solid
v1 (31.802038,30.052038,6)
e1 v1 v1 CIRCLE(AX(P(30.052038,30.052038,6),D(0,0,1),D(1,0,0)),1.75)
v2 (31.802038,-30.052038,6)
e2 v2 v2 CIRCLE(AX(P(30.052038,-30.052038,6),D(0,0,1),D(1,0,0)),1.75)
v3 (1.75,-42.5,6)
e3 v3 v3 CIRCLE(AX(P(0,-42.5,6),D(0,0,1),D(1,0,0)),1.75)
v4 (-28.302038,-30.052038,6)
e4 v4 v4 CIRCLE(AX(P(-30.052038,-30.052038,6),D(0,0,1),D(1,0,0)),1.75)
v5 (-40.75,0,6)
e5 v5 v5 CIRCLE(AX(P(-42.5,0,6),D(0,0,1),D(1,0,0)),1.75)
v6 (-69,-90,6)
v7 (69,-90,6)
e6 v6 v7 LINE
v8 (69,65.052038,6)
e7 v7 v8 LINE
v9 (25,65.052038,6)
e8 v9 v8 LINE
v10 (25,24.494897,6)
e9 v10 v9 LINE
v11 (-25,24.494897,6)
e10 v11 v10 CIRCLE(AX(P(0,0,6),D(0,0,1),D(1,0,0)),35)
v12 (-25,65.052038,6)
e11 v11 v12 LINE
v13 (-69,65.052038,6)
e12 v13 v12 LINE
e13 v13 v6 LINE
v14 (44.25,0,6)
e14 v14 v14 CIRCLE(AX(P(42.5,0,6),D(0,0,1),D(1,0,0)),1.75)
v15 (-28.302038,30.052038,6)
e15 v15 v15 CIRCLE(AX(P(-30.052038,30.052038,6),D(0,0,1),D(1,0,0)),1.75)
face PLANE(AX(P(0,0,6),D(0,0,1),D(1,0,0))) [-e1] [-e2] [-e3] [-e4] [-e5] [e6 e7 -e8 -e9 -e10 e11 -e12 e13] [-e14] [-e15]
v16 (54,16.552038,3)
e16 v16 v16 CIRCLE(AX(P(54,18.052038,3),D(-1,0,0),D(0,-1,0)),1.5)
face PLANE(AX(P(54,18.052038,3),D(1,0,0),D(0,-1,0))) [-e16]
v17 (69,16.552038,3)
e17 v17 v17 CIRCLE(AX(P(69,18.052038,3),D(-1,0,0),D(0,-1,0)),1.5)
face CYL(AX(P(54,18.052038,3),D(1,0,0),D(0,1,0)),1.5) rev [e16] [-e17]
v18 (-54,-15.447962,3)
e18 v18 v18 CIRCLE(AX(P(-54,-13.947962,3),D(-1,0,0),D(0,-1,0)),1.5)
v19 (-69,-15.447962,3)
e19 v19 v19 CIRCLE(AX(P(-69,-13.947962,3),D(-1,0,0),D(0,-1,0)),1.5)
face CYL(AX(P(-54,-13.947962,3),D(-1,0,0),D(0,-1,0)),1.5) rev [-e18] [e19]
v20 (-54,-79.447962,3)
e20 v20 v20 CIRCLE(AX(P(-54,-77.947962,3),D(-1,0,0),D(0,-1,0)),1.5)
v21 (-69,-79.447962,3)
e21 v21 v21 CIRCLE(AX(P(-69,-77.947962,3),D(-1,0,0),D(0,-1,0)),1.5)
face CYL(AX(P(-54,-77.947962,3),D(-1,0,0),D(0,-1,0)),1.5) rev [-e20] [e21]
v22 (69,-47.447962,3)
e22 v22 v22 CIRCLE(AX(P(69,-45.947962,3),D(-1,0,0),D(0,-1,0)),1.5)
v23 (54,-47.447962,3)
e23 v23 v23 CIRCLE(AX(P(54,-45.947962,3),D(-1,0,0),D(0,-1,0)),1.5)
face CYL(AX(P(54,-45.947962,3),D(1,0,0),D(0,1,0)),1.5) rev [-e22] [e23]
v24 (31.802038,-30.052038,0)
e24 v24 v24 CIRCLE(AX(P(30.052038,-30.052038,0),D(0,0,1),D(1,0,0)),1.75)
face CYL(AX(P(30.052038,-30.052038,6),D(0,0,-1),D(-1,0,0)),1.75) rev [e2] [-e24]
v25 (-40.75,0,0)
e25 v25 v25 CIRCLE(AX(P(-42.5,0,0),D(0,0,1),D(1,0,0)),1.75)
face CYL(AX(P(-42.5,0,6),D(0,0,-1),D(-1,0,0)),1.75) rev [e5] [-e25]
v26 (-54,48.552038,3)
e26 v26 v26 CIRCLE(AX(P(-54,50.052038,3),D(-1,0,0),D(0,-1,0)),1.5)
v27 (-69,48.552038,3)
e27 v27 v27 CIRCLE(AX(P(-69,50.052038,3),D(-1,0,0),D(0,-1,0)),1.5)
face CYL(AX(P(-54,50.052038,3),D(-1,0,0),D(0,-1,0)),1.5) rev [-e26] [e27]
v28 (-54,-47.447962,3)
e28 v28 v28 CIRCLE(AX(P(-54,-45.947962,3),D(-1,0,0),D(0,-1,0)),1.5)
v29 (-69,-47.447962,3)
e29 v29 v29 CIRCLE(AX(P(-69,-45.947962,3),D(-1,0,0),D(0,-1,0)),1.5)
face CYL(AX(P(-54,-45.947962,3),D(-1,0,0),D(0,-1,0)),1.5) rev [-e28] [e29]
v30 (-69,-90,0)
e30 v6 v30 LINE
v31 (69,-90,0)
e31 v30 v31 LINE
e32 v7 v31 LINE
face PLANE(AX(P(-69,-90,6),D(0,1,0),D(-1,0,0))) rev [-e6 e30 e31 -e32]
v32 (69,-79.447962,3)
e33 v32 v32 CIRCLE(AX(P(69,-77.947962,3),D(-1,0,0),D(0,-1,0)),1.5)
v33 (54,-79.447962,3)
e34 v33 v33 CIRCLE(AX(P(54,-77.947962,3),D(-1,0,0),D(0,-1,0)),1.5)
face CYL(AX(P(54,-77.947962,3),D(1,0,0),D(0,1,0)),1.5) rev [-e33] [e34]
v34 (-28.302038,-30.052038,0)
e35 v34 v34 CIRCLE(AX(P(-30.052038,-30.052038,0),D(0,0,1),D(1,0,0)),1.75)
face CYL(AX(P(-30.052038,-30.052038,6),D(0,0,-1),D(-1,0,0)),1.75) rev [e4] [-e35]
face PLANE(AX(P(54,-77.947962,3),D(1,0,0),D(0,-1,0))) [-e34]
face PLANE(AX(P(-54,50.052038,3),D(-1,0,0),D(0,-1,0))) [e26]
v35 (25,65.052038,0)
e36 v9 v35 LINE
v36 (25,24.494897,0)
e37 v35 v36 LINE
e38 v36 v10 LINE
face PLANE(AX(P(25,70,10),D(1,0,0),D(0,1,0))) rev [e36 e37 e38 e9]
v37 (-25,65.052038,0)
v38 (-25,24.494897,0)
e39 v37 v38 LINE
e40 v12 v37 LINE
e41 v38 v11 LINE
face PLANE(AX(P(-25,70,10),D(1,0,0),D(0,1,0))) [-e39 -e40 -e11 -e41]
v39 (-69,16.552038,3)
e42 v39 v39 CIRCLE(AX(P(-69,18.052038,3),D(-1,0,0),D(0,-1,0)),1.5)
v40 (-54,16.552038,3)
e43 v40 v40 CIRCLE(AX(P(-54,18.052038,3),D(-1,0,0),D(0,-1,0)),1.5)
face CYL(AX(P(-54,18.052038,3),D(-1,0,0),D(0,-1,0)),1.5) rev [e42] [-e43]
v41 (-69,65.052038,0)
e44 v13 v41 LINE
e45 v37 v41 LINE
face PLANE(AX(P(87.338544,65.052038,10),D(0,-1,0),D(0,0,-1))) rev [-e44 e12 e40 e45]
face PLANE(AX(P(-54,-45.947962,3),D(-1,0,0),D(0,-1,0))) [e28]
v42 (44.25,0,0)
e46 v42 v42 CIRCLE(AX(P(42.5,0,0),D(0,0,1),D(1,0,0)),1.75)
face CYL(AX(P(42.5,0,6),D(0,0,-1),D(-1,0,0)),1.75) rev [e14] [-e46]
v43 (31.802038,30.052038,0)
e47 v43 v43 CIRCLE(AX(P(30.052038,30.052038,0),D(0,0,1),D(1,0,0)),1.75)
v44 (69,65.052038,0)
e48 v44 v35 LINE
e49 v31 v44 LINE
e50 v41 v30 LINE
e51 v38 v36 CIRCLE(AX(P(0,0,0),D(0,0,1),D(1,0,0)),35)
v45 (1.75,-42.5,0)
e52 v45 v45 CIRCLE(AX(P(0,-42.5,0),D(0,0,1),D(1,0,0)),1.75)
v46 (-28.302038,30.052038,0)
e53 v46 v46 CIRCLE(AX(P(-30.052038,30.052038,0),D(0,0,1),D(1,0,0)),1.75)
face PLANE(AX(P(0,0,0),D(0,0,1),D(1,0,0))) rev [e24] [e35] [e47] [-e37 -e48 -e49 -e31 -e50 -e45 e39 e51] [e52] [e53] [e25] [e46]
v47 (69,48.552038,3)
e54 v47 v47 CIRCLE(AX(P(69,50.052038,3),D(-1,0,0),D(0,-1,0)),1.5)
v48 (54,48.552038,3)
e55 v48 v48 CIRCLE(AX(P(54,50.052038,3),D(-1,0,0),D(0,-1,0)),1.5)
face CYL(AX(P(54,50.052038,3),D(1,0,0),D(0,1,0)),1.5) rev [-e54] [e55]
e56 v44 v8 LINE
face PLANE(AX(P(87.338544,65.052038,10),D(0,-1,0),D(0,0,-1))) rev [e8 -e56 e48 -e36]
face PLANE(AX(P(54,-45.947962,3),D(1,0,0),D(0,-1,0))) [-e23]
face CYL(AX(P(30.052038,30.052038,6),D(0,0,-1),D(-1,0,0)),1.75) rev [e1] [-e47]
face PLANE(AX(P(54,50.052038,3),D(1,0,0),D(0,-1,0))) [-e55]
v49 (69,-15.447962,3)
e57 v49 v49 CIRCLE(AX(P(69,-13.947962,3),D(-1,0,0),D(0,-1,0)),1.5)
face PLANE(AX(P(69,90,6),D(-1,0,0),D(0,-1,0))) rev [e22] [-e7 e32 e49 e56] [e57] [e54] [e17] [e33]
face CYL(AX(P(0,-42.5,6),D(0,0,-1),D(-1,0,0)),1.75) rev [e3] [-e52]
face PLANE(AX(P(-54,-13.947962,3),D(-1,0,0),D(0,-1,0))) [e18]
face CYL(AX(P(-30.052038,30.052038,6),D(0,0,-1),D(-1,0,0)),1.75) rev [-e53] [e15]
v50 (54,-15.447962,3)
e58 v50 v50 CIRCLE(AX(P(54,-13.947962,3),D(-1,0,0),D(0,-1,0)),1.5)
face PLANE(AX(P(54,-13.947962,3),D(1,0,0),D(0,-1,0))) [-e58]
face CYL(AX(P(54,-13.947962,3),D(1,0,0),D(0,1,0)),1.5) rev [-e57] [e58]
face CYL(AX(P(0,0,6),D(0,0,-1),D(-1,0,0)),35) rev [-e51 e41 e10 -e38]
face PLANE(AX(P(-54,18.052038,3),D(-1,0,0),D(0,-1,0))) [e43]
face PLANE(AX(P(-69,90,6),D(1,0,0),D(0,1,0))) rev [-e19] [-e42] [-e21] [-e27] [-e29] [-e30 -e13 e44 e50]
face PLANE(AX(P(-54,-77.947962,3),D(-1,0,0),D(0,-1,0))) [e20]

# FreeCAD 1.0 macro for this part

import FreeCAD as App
import Part
import Sketcher
from FreeCAD import Vector

doc = App.newDocument("Part")
body = doc.addObject("PartDesign::Body", "Body")

sketch1 = body.newObject("Sketcher::SketchObject", "Sketch")
sketch1.AttachmentSupport = (doc.getObject("XY_Plane"), [""])
sketch1.MapMode = "FlatFace"
sketch1.addGeometry(Part.LineSegment(Vector(-69, 90, 0), Vector(-69, -90, 0)), False)
sketch1.addGeometry(Part.LineSegment(Vector(-69, -90, 0), Vector(69, -90, 0)), False)
sketch1.addGeometry(Part.LineSegment(Vector(69, -90, 0), Vector(69, 90, 0)), False)
sketch1.addGeometry(Part.LineSegment(Vector(69, 90, 0), Vector(-69, 90, 0)), False)
sketch1.addGeometry(Part.Circle(Vector(-30.1, -30.1, 0), Vector(0, 0, 1), 1.8), False)
sketch1.addGeometry(Part.Circle(Vector(0, -42.5, 0), Vector(0, 0, 1), 1.8), False)
sketch1.addGeometry(Part.Circle(Vector(30.1, -30.1, 0), Vector(0, 0, 1), 1.8), False)
sketch1.addGeometry(Part.Circle(Vector(-42.5, 0, 0), Vector(0, 0, 1), 1.8), False)
sketch1.addGeometry(Part.Circle(Vector(-30.1, 30.1, 0), Vector(0, 0, 1), 1.8), False)
sketch1.addGeometry(Part.Circle(Vector(0, 0, 0), Vector(0, 0, 1), 35), False)
sketch1.addGeometry(Part.Circle(Vector(42.5, 0, 0), Vector(0, 0, 1), 1.8), False)
sketch1.addGeometry(Part.Circle(Vector(0, 42.5, 0), Vector(0, 0, 1), 1.8), False)
sketch1.addGeometry(Part.Circle(Vector(30.1, 30.1, 0), Vector(0, 0, 1), 1.8), False)
sketch1.addConstraint(Sketcher.Constraint("Coincident", 0, 2, 1, 1))
sketch1.addConstraint(Sketcher.Constraint("Coincident", 1, 2, 2, 1))
sketch1.addConstraint(Sketcher.Constraint("Coincident", 2, 2, 3, 1))
sketch1.addConstraint(Sketcher.Constraint("Coincident", 3, 2, 0, 1))
sketch1.addConstraint(Sketcher.Constraint("Vertical", 0))
sketch1.addConstraint(Sketcher.Constraint("Horizontal", 1))
sketch1.addConstraint(Sketcher.Constraint("Vertical", 2))
sketch1.addConstraint(Sketcher.Constraint("Horizontal", 3))
sketch1.addConstraint(Sketcher.Constraint("Coincident", 9, 3, -1, 1))
sketch1.addConstraint(Sketcher.Constraint("Equal", 4, 5))
sketch1.addConstraint(Sketcher.Constraint("Equal", 5, 6))
sketch1.addConstraint(Sketcher.Constraint("Equal", 6, 7))
sketch1.addConstraint(Sketcher.Constraint("Equal", 7, 8))
sketch1.addConstraint(Sketcher.Constraint("Equal", 8, 10))
sketch1.addConstraint(Sketcher.Constraint("Equal", 10, 11))
sketch1.addConstraint(Sketcher.Constraint("Equal", 11, 12))
sketch1.addConstraint(Sketcher.Constraint("Symmetric", 6, 3, 8, 3, -1, 1))
sketch1.addConstraint(Sketcher.Constraint("Symmetric", 7, 3, 10, 3, -1, 1))
sketch1.addConstraint(Sketcher.Constraint("Symmetric", 5, 3, 11, 3, -1, 1))
sketch1.addConstraint(Sketcher.Constraint("Symmetric", 4, 3, 12, 3, -1, 1))
sketch1.addConstraint(Sketcher.Constraint("Symmetric", 0, 2, 2, 2, -1, 1))
sketch1.addConstraint(Sketcher.Constraint("Symmetric", 4, 3, 6, 3, -2))
sketch1.addConstraint(Sketcher.Constraint("PointOnObject", 5, 3, -2))
sketch1.addConstraint(Sketcher.Constraint("PointOnObject", 7, 3, -1))
sketch1.addConstraint(Sketcher.Constraint("Diameter", 9, 70.0))
sketch1.addConstraint(Sketcher.Constraint("Diameter", 4, 3.5))
sketch1.addConstraint(Sketcher.Constraint("DistanceX", 1, 1, 1, 2, 138.0))
sketch1.addConstraint(Sketcher.Constraint("DistanceY", 0, 2, 0, 1, 180.0))
sketch1.addConstraint(Sketcher.Constraint("DistanceY", 5, 3, -1, 1, 42.5))
sketch1.addConstraint(Sketcher.Constraint("DistanceX", 7, 3, -1, 1, 42.5))
sketch1.addConstraint(Sketcher.Constraint("DistanceX", 4, 3, -1, 1, 30.052038))
sketch1.addConstraint(Sketcher.Constraint("DistanceY", 4, 3, -1, 1, 30.052038))
pad1 = body.newObject("PartDesign::Pad", "Pad")
pad1.Profile = sketch1
pad1.Length = 6

sketch2 = body.newObject("Sketcher::SketchObject", "Sketch001")
sketch2.AttachmentSupport = (doc.getObject("XY_Plane"), [""])
sketch2.MapMode = "FlatFace"
sketch2.addGeometry(Part.LineSegment(Vector(25, 70, 0), Vector(25, 20, 0)), False)
sketch2.addGeometry(Part.LineSegment(Vector(25, 20, 0), Vector(-25, 20, 0)), False)
sketch2.addGeometry(Part.LineSegment(Vector(-25, 20, 0), Vector(-25, 70, 0)), False)
sketch2.addGeometry(Part.LineSegment(Vector(-25, 70, 0), Vector(25, 70, 0)), False)
sketch2.addConstraint(Sketcher.Constraint("Coincident", 0, 2, 1, 1))
sketch2.addConstraint(Sketcher.Constraint("Coincident", 1, 2, 2, 1))
sketch2.addConstraint(Sketcher.Constraint("Coincident", 2, 2, 3, 1))
sketch2.addConstraint(Sketcher.Constraint("Coincident", 3, 2, 0, 1))
sketch2.addConstraint(Sketcher.Constraint("Vertical", 0))
sketch2.addConstraint(Sketcher.Constraint("Horizontal", 1))
sketch2.addConstraint(Sketcher.Constraint("Vertical", 2))
sketch2.addConstraint(Sketcher.Constraint("Horizontal", 3))
sketch2.addConstraint(Sketcher.Constraint("Equal", 3, 0))
sketch2.addConstraint(Sketcher.Constraint("DistanceX", 1, 2, 1, 1, 50.0))
sketch2.addConstraint(Sketcher.Constraint("DistanceX", -1, 1, 0, 2, 25.0))
sketch2.addConstraint(Sketcher.Constraint("DistanceY", -1, 1, 0, 2, 20.0))
pocket1 = body.newObject("PartDesign::Pocket", "Pocket")
pocket1.Profile = sketch2
pocket1.Length = 10
pocket1.Reversed = True

sketch3 = body.newObject("Sketcher::SketchObject", "Sketch002")
sketch3.AttachmentSupport = (doc.getObject("XY_Plane"), [""])
sketch3.MapMode = "FlatFace"
sketch3.addGeometry(Part.LineSegment(Vector(87, 138, 0), Vector(87, 65, 0)), False)
sketch3.addGeometry(Part.LineSegment(Vector(87, 65, 0), Vector(-98, 65, 0)), False)
sketch3.addGeometry(Part.LineSegment(Vector(-98, 65, 0), Vector(-98, 138, 0)), False)
sketch3.addGeometry(Part.LineSegment(Vector(-98, 138, 0), Vector(87, 138, 0)), False)
sketch3.addConstraint(Sketcher.Constraint("Coincident", 0, 2, 1, 1))
sketch3.addConstraint(Sketcher.Constraint("Coincident", 1, 2, 2, 1))
sketch3.addConstraint(Sketcher.Constraint("Coincident", 2, 2, 3, 1))
sketch3.addConstraint(Sketcher.Constraint("Coincident", 3, 2, 0, 1))
sketch3.addConstraint(Sketcher.Constraint("Vertical", 0))
sketch3.addConstraint(Sketcher.Constraint("Horizontal", 1))
sketch3.addConstraint(Sketcher.Constraint("Vertical", 2))
sketch3.addConstraint(Sketcher.Constraint("Horizontal", 3))
sketch3.addConstraint(Sketcher.Constraint("DistanceX", 1, 2, 1, 1, 185.340515))
sketch3.addConstraint(Sketcher.Constraint("DistanceY", 0, 2, 0, 1, 73.116156))
sketch3.addConstraint(Sketcher.Constraint("DistanceY", -1, 1, 0, 2, 65.052038))
sketch3.addConstraint(Sketcher.Constraint("DistanceX", 1, 2, -1, 1, 98.001971))
pocket2 = body.newObject("PartDesign::Pocket", "Pocket001")
pocket2.Profile = sketch3
pocket2.Length = 10
pocket2.Reversed = True

sketch4 = body.newObject("Sketcher::SketchObject", "Sketch003")
sketch4.AttachmentSupport = (doc.getObject("YZ_Plane"), [""])
sketch4.MapMode = "FlatFace"
sketch4.AttachmentOffset = App.Placement(Vector(0, 0, -69), App.Rotation())
sketch4.addGeometry(Part.Circle(Vector(50.1, 3, 0), Vector(0, 0, 1), 1.5), False)
sketch4.addGeometry(Part.Circle(Vector(18.1, 3, 0), Vector(0, 0, 1), 1.5), False)
sketch4.addGeometry(Part.Circle(Vector(-13.9, 3, 0), Vector(0, 0, 1), 1.5), False)
sketch4.addGeometry(Part.Circle(Vector(-45.9, 3, 0), Vector(0, 0, 1), 1.5), False)
sketch4.addGeometry(Part.Circle(Vector(-77.9, 3, 0), Vector(0, 0, 1), 1.5), False)
sketch4.addConstraint(Sketcher.Constraint("Equal", 0, 1))
sketch4.addConstraint(Sketcher.Constraint("Equal", 1, 2))
sketch4.addConstraint(Sketcher.Constraint("Equal", 2, 3))
sketch4.addConstraint(Sketcher.Constraint("Equal", 3, 4))
sketch4.addConstraint(Sketcher.Constraint("Horizontal", 0, 3, 1, 3))
sketch4.addConstraint(Sketcher.Constraint("Horizontal", 1, 3, 2, 3))
sketch4.addConstraint(Sketcher.Constraint("Horizontal", 2, 3, 3, 3))
sketch4.addConstraint(Sketcher.Constraint("Horizontal", 3, 3, 4, 3))
sketch4.addConstraint(Sketcher.Constraint("Diameter", 0, 3.0))
sketch4.addConstraint(Sketcher.Constraint("DistanceY", -1, 1, 0, 3, 3.0))
sketch4.addConstraint(Sketcher.Constraint("DistanceX", 1, 3, 0, 3, 32.0))
sketch4.addConstraint(Sketcher.Constraint("DistanceX", 2, 3, 1, 3, 32.0))
sketch4.addConstraint(Sketcher.Constraint("DistanceX", 3, 3, 2, 3, 32.0))
sketch4.addConstraint(Sketcher.Constraint("DistanceX", 4, 3, 3, 3, 32.0))
sketch4.addConstraint(Sketcher.Constraint("DistanceX", -1, 1, 0, 3, 50.052038))
pocket3 = body.newObject("PartDesign::Pocket", "Pocket002")
pocket3.Profile = sketch4
pocket3.Length = 15
pocket3.Reversed = True
doc.recompute()

mirrored = body.newObject("PartDesign::Mirrored", "Mirrored")
mirrored.Originals = [pocket3]
mirrored.MirrorPlane = (doc.getObject("YZ_Plane"), [""])
body.Tip = mirrored

doc.recompute()
